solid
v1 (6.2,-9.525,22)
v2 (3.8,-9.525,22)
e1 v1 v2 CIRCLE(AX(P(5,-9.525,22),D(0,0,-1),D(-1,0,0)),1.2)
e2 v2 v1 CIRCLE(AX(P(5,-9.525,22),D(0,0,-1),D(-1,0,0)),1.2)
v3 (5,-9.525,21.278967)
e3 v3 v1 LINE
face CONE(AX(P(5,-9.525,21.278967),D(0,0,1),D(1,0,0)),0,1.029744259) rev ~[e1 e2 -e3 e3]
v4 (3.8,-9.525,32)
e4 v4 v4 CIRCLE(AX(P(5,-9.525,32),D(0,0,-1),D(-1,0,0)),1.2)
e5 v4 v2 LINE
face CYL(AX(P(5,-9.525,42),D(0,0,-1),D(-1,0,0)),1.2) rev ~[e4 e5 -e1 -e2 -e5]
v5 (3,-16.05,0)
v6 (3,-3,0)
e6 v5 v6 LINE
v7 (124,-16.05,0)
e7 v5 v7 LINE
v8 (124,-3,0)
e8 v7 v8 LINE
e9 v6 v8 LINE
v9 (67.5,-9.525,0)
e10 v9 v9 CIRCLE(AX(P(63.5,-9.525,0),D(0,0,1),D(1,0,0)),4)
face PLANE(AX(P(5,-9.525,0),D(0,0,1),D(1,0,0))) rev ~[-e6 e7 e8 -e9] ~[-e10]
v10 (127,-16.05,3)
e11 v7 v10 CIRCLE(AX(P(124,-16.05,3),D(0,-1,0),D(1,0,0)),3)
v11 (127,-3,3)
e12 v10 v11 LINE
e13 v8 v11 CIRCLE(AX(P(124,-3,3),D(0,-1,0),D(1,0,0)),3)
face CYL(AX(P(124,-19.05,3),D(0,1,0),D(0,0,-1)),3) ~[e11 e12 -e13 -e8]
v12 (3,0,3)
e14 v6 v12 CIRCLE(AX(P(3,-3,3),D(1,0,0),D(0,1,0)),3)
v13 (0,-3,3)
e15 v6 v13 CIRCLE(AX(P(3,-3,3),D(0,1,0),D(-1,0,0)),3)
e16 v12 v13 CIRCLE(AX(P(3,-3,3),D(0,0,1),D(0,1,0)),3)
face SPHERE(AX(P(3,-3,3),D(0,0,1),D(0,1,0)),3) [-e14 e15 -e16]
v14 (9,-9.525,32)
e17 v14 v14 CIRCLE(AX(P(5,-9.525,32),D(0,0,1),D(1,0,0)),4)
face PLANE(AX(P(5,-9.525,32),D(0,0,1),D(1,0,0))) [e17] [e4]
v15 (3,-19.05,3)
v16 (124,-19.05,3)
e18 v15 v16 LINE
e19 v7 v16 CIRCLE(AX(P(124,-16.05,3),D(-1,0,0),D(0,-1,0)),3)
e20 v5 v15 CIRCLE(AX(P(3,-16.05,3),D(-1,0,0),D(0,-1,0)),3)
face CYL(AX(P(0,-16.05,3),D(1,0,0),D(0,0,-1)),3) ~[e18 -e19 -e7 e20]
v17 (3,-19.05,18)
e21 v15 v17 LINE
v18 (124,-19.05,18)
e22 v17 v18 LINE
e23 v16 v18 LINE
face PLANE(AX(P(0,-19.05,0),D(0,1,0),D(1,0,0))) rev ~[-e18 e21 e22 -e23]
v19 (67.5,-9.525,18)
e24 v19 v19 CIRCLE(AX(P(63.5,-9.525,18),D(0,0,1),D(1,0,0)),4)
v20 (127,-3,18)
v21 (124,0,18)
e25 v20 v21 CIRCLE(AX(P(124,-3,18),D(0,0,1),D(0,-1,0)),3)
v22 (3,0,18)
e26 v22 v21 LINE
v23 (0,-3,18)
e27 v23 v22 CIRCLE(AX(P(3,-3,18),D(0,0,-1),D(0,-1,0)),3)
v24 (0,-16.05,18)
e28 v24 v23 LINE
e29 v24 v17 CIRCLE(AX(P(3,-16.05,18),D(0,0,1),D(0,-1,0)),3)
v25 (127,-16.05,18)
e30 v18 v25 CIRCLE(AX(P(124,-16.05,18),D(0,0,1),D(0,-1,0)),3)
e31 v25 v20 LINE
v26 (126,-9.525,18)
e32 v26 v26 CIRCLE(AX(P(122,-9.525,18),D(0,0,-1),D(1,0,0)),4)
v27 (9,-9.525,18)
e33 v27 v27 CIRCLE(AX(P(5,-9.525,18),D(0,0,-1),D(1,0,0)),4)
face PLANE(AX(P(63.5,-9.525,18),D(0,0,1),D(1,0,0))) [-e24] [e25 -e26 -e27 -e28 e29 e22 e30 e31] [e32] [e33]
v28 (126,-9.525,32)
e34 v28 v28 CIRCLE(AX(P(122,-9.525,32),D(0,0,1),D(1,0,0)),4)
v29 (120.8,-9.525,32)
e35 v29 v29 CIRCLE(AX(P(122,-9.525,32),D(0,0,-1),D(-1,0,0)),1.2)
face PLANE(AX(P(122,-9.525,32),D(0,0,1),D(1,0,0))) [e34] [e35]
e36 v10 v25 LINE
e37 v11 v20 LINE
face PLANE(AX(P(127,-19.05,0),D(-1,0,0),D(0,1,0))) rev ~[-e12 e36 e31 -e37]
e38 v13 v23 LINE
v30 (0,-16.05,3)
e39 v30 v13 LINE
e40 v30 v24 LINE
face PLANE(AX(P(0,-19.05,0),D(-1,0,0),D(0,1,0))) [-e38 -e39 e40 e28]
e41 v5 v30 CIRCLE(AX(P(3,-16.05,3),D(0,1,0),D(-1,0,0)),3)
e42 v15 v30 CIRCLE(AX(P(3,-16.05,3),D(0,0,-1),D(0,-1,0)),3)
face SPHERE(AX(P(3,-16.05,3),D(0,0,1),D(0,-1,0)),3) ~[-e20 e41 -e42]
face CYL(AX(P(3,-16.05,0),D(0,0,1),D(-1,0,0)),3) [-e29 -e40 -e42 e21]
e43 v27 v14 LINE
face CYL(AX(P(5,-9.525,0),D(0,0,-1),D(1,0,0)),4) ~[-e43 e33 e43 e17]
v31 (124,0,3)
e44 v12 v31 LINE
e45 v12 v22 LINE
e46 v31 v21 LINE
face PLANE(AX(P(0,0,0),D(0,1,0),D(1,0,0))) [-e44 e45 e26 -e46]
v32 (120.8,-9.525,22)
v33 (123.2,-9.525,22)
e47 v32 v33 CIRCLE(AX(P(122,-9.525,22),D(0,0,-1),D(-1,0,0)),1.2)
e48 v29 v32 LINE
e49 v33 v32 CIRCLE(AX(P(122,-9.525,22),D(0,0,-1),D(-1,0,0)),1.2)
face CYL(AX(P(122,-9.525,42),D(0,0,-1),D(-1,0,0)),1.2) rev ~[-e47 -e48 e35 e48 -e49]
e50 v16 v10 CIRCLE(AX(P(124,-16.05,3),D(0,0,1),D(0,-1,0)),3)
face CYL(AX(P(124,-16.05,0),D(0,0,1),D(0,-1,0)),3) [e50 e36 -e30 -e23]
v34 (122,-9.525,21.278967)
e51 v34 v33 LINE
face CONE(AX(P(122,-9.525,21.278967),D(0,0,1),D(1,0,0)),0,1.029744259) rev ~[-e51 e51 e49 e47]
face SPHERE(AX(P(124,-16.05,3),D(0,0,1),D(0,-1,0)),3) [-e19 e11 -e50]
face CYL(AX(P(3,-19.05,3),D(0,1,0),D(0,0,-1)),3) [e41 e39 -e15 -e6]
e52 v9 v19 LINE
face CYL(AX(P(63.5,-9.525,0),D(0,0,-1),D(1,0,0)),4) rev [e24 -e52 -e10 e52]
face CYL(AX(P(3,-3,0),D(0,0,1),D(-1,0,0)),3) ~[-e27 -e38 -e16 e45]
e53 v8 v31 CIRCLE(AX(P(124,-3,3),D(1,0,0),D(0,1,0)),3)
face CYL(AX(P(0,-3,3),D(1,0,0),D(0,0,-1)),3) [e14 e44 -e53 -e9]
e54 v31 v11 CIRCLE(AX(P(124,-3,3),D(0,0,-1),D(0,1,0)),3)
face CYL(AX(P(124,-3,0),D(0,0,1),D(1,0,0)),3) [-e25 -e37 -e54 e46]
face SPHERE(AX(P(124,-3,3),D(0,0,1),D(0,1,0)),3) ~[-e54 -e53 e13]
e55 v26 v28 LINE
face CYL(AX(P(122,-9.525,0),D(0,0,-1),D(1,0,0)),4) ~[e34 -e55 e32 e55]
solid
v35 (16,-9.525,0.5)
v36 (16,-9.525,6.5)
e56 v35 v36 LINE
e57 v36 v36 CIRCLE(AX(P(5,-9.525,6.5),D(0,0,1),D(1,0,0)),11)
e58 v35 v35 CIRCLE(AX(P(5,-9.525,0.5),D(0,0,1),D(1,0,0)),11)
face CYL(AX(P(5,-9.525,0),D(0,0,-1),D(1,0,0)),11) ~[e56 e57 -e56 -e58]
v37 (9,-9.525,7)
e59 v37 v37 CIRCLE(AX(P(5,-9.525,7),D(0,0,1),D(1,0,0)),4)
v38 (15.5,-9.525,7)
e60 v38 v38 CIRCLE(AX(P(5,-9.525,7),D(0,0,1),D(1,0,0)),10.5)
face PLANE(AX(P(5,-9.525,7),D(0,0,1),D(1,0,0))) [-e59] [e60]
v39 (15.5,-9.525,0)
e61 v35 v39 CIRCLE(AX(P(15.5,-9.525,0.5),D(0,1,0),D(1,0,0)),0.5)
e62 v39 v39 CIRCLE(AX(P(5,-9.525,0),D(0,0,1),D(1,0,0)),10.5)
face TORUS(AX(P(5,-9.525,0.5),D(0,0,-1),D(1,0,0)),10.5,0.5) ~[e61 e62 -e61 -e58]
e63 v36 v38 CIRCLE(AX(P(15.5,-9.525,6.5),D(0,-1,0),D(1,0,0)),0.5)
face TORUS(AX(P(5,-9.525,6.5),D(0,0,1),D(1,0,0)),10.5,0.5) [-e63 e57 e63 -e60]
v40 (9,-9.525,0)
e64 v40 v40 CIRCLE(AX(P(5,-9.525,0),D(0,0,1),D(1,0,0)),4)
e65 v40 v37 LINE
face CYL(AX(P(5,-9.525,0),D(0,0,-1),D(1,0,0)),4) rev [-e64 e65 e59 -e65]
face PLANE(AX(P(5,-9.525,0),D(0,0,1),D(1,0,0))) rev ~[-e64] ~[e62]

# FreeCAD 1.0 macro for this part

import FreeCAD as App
import Part
import Sketcher

V = App.Vector


def edges_at(feature, points):
    """Names of the edges that pass closest to the given points."""
    edges = feature.Shape.Edges
    near = lambda p: min(range(len(edges)), key=lambda i: edges[i].distToShape(Part.Vertex(*p))[0])
    return sorted({f"Edge{near(p) + 1}" for p in points})

doc = App.newDocument("Part")
params = doc.addObject("Spreadsheet::Sheet", "Params")
for row, (alias, value) in enumerate([
    ("sketch1_diameter", "8 mm"),
    ("sketch1_width", "127 mm"),
    ("sketch1_height", "19.05 mm"),
    ("pad1_length", "18 mm"),
    ("sketch2_diameter", "8 mm"),
    ("pad2_length", "32 mm"),
    ("sketch3_diameter", "2.4 mm"),
    ("hole_diameter", "2.4 mm"),
    ("hole_depth", "10 mm"),
    ("fillet_radius", "3 mm"),
    ("sketch4_diameter", "22 mm"),
    ("sketch4_diameter2", "8 mm"),
    ("pad3_length", "7 mm"),
    ("fillet2_radius", "0.5 mm"),
], start=1):
    params.set(f"A{row}", alias)
    params.set(f"B{row}", "=" + value)
    params.setAlias(f"B{row}", alias)

body = doc.addObject("PartDesign::Body", "Body")

# Sketch on XY plane
sketch1 = body.newObject("Sketcher::SketchObject", "Sketch")
sketch1.AttachmentSupport = (doc.getObject("XY_Plane"), [""])
sketch1.MapMode = "FlatFace"
sketch1.addGeometry(Part.LineSegment(V(0, 0, 0), V(0, -19.1, 0)), False)
sketch1.addGeometry(Part.LineSegment(V(0, -19.1, 0), V(127, -19.1, 0)), False)
sketch1.addGeometry(Part.LineSegment(V(127, -19.1, 0), V(127, 0, 0)), False)
sketch1.addGeometry(Part.LineSegment(V(127, 0, 0), V(0, 0, 0)), False)
sketch1.addGeometry(Part.Circle(V(63.5, -9.5, 0), V(0, 0, 1), 4), False)
sketch1.addConstraint(Sketcher.Constraint("Coincident", 0, 2, 1, 1))
sketch1.addConstraint(Sketcher.Constraint("Coincident", 1, 2, 2, 1))
sketch1.addConstraint(Sketcher.Constraint("Coincident", 2, 2, 3, 1))
sketch1.addConstraint(Sketcher.Constraint("Coincident", 3, 2, 0, 1))
sketch1.addConstraint(Sketcher.Constraint("Vertical", 0))
sketch1.addConstraint(Sketcher.Constraint("Horizontal", 1))
sketch1.addConstraint(Sketcher.Constraint("Vertical", 2))
sketch1.addConstraint(Sketcher.Constraint("Horizontal", 3))
sketch1.addConstraint(Sketcher.Constraint("Coincident", 3, 2, -1, 1))
sketch1.addConstraint(Sketcher.Constraint("Diameter", 4, 8.0))
sketch1.addConstraint(Sketcher.Constraint("DistanceX", 1, 1, 1, 2, 127.0))
sketch1.addConstraint(Sketcher.Constraint("DistanceY", 0, 2, 0, 1, 19.05))
sketch1.addConstraint(Sketcher.Constraint("DistanceX", -1, 1, 4, 3, 63.5))
sketch1.addConstraint(Sketcher.Constraint("DistanceY", 4, 3, -1, 1, 9.525))
sketch1.setExpression("Constraints[9]", "Params.sketch1_diameter")
sketch1.setExpression("Constraints[10]", "Params.sketch1_width")
sketch1.setExpression("Constraints[11]", "Params.sketch1_height")
pad1 = body.newObject("PartDesign::Pad", "Pad")
pad1.Profile = sketch1
pad1.setExpression("Length", "Params.pad1_length")

# Sketch on XY plane
sketch2 = body.newObject("Sketcher::SketchObject", "Sketch001")
sketch2.AttachmentSupport = (doc.getObject("XY_Plane"), [""])
sketch2.MapMode = "FlatFace"
sketch2.addGeometry(Part.Circle(V(5, -9.5, 0), V(0, 0, 1), 4), False)
sketch2.addGeometry(Part.Circle(V(122, -9.5, 0), V(0, 0, 1), 4), False)
sketch2.addConstraint(Sketcher.Constraint("Equal", 0, 1))
sketch2.addConstraint(Sketcher.Constraint("Horizontal", 0, 3, 1, 3))
sketch2.addConstraint(Sketcher.Constraint("Diameter", 0, 8.0))
sketch2.addConstraint(Sketcher.Constraint("DistanceX", -1, 1, 0, 3, 5.0))
sketch2.addConstraint(Sketcher.Constraint("DistanceX", -1, 1, 1, 3, 122.0))
sketch2.addConstraint(Sketcher.Constraint("DistanceY", 0, 3, -1, 1, 9.525))
sketch2.setExpression("Constraints[2]", "Params.sketch2_diameter")
pad2 = body.newObject("PartDesign::Pad", "Pad001")
pad2.Profile = sketch2
pad2.setExpression("Length", "Params.pad2_length")

# Sketch on XY plane
sketch3 = body.newObject("Sketcher::SketchObject", "Sketch002")
sketch3.AttachmentSupport = (doc.getObject("XY_Plane"), [""])
sketch3.MapMode = "FlatFace"
sketch3.AttachmentOffset = App.Placement(V(0, 0, 32), App.Rotation())
sketch3.addGeometry(Part.Circle(V(5, -9.5, 0), V(0, 0, 1), 1.2), False)
sketch3.addGeometry(Part.Circle(V(122, -9.5, 0), V(0, 0, 1), 1.2), False)
sketch3.addConstraint(Sketcher.Constraint("Equal", 0, 1))
sketch3.addConstraint(Sketcher.Constraint("Horizontal", 0, 3, 1, 3))
sketch3.addConstraint(Sketcher.Constraint("Diameter", 0, 2.4))
sketch3.addConstraint(Sketcher.Constraint("DistanceX", -1, 1, 0, 3, 5.0))
sketch3.addConstraint(Sketcher.Constraint("DistanceX", -1, 1, 1, 3, 122.0))
sketch3.addConstraint(Sketcher.Constraint("DistanceY", 0, 3, -1, 1, 9.525))
sketch3.setExpression("Constraints[2]", "Params.sketch3_diameter")
doc.recompute()
hole = body.newObject("PartDesign::Hole", "Hole")
hole.Profile = sketch3
hole.ThreadType = "None"
hole.setExpression("Diameter", "Params.hole_diameter")
hole.DepthType = "Dimension"
hole.setExpression("Depth", "Params.hole_depth")
hole.DrillPoint = "Angled"
hole.DrillPointAngle = 118
doc.recompute()

fillet = body.newObject("PartDesign::Fillet", "Fillet")
fillet.Base = (hole, edges_at(hole, [
    (127, -19.05, 9),
    (127, 0, 9),
    (0, 0, 9),
    (0, -19.05, 9),
    (63.5, -19.05, 0),
    (63.5, 0, 0),
    (0, -9.525, 0),
    (127, -9.525, 0),
]))
fillet.setExpression("Radius", "Params.fillet_radius")
body2 = doc.addObject("PartDesign::Body", "Body001")

# Sketch on XY plane
sketch4 = body2.newObject("Sketcher::SketchObject", "Sketch003")
sketch4.AttachmentSupport = (doc.getObject("XY_Plane001"), [""])
sketch4.MapMode = "FlatFace"
sketch4.addGeometry(Part.Circle(V(5, -9.5, 0), V(0, 0, 1), 11), False)
sketch4.addGeometry(Part.Circle(V(5, -9.5, 0), V(0, 0, 1), 4), False)
sketch4.addConstraint(Sketcher.Constraint("Coincident", 1, 3, 0, 3))
sketch4.addConstraint(Sketcher.Constraint("Diameter", 0, 22.0))
sketch4.addConstraint(Sketcher.Constraint("Diameter", 1, 8.0))
sketch4.addConstraint(Sketcher.Constraint("DistanceX", -1, 1, 0, 3, 5.0))
sketch4.addConstraint(Sketcher.Constraint("DistanceY", 0, 3, -1, 1, 9.525))
sketch4.setExpression("Constraints[1]", "Params.sketch4_diameter")
sketch4.setExpression("Constraints[2]", "Params.sketch4_diameter2")
pad3 = body2.newObject("PartDesign::Pad", "Pad002")
pad3.Profile = sketch4
pad3.setExpression("Length", "Params.pad3_length")
doc.recompute()

fillet2 = body2.newObject("PartDesign::Fillet", "Fillet001")
fillet2.Base = (pad3, edges_at(pad3, [(-6, -9.525, 7), (-6, -9.525, 0)]))
fillet2.setExpression("Radius", "Params.fillet2_radius")

doc.recompute()
